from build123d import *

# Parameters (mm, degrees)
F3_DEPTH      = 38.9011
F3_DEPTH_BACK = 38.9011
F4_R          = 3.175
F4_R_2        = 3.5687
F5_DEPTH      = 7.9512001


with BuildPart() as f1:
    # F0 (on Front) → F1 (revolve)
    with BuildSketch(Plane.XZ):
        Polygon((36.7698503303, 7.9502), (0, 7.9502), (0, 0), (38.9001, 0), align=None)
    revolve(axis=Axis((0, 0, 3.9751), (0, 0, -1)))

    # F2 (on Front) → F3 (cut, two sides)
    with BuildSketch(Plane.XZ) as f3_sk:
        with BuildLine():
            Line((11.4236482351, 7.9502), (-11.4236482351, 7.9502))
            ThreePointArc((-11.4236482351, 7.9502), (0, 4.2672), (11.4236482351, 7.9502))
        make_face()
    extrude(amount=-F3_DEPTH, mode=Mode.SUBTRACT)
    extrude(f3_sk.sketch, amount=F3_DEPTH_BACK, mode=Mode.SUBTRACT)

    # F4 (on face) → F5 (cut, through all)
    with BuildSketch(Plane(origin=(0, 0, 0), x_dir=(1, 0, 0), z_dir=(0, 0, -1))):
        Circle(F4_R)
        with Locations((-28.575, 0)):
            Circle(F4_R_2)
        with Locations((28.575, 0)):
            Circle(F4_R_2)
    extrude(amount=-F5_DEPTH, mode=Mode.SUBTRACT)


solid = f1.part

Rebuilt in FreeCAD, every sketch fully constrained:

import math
import FreeCAD as App
import Part
import Sketcher
Q = App.Units.Quantity

doc = App.newDocument("Part")
body = doc.addObject("PartDesign::Body", "Body")

sketch1 = body.newObject("Sketcher::SketchObject", "Sketch")
sketch1.AttachmentSupport = (doc.getObject("XZ_Plane"), [""])
sketch1.MapMode = "FlatFace"
sketch1.addGeometry([
    Part.LineSegment(App.Vector(37, 8, 0), App.Vector(0, 8, 0)),
    Part.LineSegment(App.Vector(0, 8, 0), App.Vector(0, 0, 0)),
    Part.LineSegment(App.Vector(0, 0, 0), App.Vector(39, 0, 0)),
    Part.LineSegment(App.Vector(39, 0, 0), App.Vector(37, 8, 0)),
], False)
sketch1.addConstraint([
    Sketcher.Constraint("Coincident", 0, 2, 1, 1),
    Sketcher.Constraint("Coincident", 1, 2, 2, 1),
    Sketcher.Constraint("Coincident", 2, 2, 3, 1),
    Sketcher.Constraint("Coincident", 3, 2, 0, 1),
    Sketcher.Constraint("Horizontal", 0),
    Sketcher.Constraint("Vertical", 1),
    Sketcher.Constraint("Horizontal", 2),
    Sketcher.Constraint("Coincident", 1, 2, -1, 1),
    Sketcher.Constraint("Angle", 3, Q("105 deg")),
    Sketcher.Constraint("DistanceY", 1, 2, 1, 1, Q("0.313 in")),
    Sketcher.Constraint("DistanceX", 2, 1, 2, 2, Q("1.5315 in")),
])
revolution = body.newObject("PartDesign::Revolution", "Revolution")
revolution.Profile = sketch1
revolution.ReferenceAxis = (sketch1, ["V_Axis"])
revolution.Angle = 360

sketch2 = body.newObject("Sketcher::SketchObject", "Sketch001")
sketch2.AttachmentSupport = (doc.getObject("XZ_Plane"), [""])
sketch2.MapMode = "FlatFace"
sketch2.addGeometry([
    Part.LineSegment(App.Vector(11, 8, 0), App.Vector(-11, 8, 0)),
    Part.ArcOfCircle(Part.Circle(App.Vector(0, 24, 0), App.Vector(0, 0, 1), 20), math.radians(-126), math.radians(-54)),
], False)
sketch2.addConstraint([
    Sketcher.Constraint("Coincident", 0, 1, 1, 2),
    Sketcher.Constraint("Coincident", 1, 1, 0, 2),
    Sketcher.Constraint("Horizontal", 0),
    Sketcher.Constraint("PointOnObject", 1, 3, -2),
    Sketcher.Constraint("Radius", 1, Q("0.77 in")),
    Sketcher.Constraint("DistanceX", 0, 2, 0, 1, Q("0.8994999 in")),
    Sketcher.Constraint("DistanceY", -1, 1, 1, 3, Q("0.938 in")),
])
pocket1 = body.newObject("PartDesign::Pocket", "Pocket")
pocket1.Profile = sketch2
pocket1.Type = "ThroughAll"
pocket1.Midplane = True

sketch3 = body.newObject("Sketcher::SketchObject", "Sketch002")
sketch3.AttachmentSupport = (doc.getObject("XY_Plane"), [""])
sketch3.MapMode = "FlatFace"
sketch3.addGeometry([
    Part.Circle(App.Vector(0, 0, 0), App.Vector(0, 0, 1), 3.2),
    Part.Circle(App.Vector(-28.6, 0, 0), App.Vector(0, 0, 1), 3.6),
    Part.Circle(App.Vector(28.6, 0, 0), App.Vector(0, 0, 1), 3.6),
], False)
sketch3.addConstraint([
    Sketcher.Constraint("Coincident", 0, 3, -1, 1),
    Sketcher.Constraint("Equal", 1, 2),
    Sketcher.Constraint("Symmetric", 1, 3, 2, 3, -1, 1),
    Sketcher.Constraint("PointOnObject", 1, 3, -1),
    Sketcher.Constraint("Diameter", 0, Q("0.25 in")),
    Sketcher.Constraint("Diameter", 1, Q("0.281 in")),
    Sketcher.Constraint("DistanceX", 1, 3, 2, 3, Q("2.25 in")),
])
pocket2 = body.newObject("PartDesign::Pocket", "Pocket001")
pocket2.Profile = sketch3
pocket2.Type = "ThroughAll"
pocket2.Reversed = True

doc.recompute()
